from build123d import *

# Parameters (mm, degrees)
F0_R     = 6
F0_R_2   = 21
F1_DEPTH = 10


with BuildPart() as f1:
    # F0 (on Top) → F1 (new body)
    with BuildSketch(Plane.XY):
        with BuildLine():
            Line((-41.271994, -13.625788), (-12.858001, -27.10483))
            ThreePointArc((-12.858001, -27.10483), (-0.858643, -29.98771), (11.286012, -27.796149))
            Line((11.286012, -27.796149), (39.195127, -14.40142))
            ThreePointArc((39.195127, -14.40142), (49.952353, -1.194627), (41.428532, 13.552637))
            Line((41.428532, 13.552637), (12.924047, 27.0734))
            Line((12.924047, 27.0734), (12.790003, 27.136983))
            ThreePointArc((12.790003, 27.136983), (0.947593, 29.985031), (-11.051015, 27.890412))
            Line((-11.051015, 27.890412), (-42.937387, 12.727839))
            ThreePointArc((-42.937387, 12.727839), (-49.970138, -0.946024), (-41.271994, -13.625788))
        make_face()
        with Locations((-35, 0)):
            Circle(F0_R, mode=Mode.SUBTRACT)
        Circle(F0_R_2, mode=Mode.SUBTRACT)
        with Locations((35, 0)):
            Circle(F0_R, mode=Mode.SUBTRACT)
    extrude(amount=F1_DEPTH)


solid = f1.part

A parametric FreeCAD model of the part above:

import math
import FreeCAD as App
import Part
import Sketcher

V = App.Vector
Q = App.Units.Quantity

doc = App.newDocument("Part")
body = doc.addObject("PartDesign::Body", "Body")

# Sketch on XY plane
sketch1 = body.newObject("Sketcher::SketchObject", "Sketch")
sketch1.AttachmentSupport = (doc.getObject("XY_Plane"), [""])
sketch1.MapMode = "FlatFace"
sketch1.addGeometry([
    Part.LineSegment(V(-41.271994, -13.625788, 0), V(-12.858001, -27.10483, 0)),  # 0
    Part.ArcOfCircle(Part.Circle(V(-0.000001, -0.000007, 0), V(0, 0, 1), 29.999993), math.radians(-115.378752), math.radians(-67.901469)),  # 1
    Part.LineSegment(V(11.286012, -27.796149, 0), V(39.195127, -14.40142, 0)),  # 2
    Part.ArcOfCircle(Part.Circle(V(35, 0, 0), V(0, 0, 1), 15), math.radians(-73.759184), math.radians(64.623233)),  # 3
    Part.LineSegment(V(41.428532, 13.552637, 0), V(12.924047, 27.0734, 0)),  # 4
    Part.LineSegment(V(12.924047, 27.0734, 0), V(12.790003, 27.136983, 0)),  # 5
    Part.ArcOfCircle(Part.Circle(V(0, 0, 0), V(0, 0, 1), 30.000001), math.radians(64.764906), math.radians(111.614951)),  # 6
    Part.LineSegment(V(-11.051015, 27.890412, 0), V(-42.937387, 12.727839, 0)),  # 7
    Part.ArcOfCircle(Part.Circle(V(-34.999999, 0, 0), V(0, 0, 1), 15), math.radians(121.94866), math.radians(245.28323)),  # 8
    Part.Circle(V(-35, 0, 0), V(0, 0, 1), 6),  # 9
    Part.Circle(V(0, 0, 0), V(0, 0, 1), 21),  # 10
    Part.Circle(V(35, 0, 0), V(0, 0, 1), 6),  # 11
], False)
sketch1.addConstraint([
    Sketcher.Constraint("Tangent", 0, 2, 1, 1),
    Sketcher.Constraint("Coincident", 1, 2, 2, 1),
    Sketcher.Constraint("Coincident", 2, 2, 3, 1),
    Sketcher.Constraint("Tangent", 3, 2, 4, 1),
    Sketcher.Constraint("Coincident", 4, 2, 5, 1),
    Sketcher.Constraint("Coincident", 5, 2, 6, 1),
    Sketcher.Constraint("Coincident", 6, 2, 7, 1),
    Sketcher.Constraint("Coincident", 7, 2, 8, 1),
    Sketcher.Constraint("Coincident", 8, 2, 0, 1),
    Sketcher.Constraint("Coincident", 1, 3, -1, 1),
    Sketcher.Constraint("Coincident", 6, 3, -1, 1),
    Sketcher.Constraint("Coincident", 10, 3, -1, 1),
    Sketcher.Constraint("Coincident", 9, 3, 8, 3),
    Sketcher.Constraint("Coincident", 11, 3, 3, 3),
    Sketcher.Constraint("Equal", 3, 8),
    Sketcher.Constraint("Equal", 9, 11),
    Sketcher.Constraint("Symmetric", 3, 3, 8, 3, -1, 1),
    Sketcher.Constraint("PointOnObject", 3, 3, -1),
    Sketcher.Constraint("Diameter", 9, Q("12 mm")),
    Sketcher.Constraint("Diameter", 10, Q("42 mm")),
    Sketcher.Constraint("Radius", 3, Q("15 mm")),
    Sketcher.Constraint("Radius", 6, Q("30.000001 mm")),
    Sketcher.Constraint("DistanceX", -1, 1, 3, 3, Q("35 mm")),
    Sketcher.Constraint("Distance", 0, Q("31.449 mm")),
    Sketcher.Constraint("DistanceX", 0, 2, -1, 1, Q("12.858001 mm")),
    Sketcher.Constraint("DistanceY", -1, 1, 4, 2, Q("27.0734 mm")),
    Sketcher.Constraint("Distance", 4, Q("31.54864 mm")),
    Sketcher.Constraint("Distance", 5, Q("0.14836 mm")),
    Sketcher.Constraint("Distance", 7, Q("35.307851 mm")),
    Sketcher.Constraint("DistanceX", -1, 1, 1, 2, Q("11.286012 mm")),
    Sketcher.Constraint("DistanceY", 2, 2, -1, 1, Q("14.40142 mm")),
    Sketcher.Constraint("DistanceY", -1, 1, 6, 2, Q("27.890412 mm")),
])
pad1 = body.newObject("PartDesign::Pad", "Pad")
pad1.Profile = sketch1
pad1.Length = 10

doc.recompute()
